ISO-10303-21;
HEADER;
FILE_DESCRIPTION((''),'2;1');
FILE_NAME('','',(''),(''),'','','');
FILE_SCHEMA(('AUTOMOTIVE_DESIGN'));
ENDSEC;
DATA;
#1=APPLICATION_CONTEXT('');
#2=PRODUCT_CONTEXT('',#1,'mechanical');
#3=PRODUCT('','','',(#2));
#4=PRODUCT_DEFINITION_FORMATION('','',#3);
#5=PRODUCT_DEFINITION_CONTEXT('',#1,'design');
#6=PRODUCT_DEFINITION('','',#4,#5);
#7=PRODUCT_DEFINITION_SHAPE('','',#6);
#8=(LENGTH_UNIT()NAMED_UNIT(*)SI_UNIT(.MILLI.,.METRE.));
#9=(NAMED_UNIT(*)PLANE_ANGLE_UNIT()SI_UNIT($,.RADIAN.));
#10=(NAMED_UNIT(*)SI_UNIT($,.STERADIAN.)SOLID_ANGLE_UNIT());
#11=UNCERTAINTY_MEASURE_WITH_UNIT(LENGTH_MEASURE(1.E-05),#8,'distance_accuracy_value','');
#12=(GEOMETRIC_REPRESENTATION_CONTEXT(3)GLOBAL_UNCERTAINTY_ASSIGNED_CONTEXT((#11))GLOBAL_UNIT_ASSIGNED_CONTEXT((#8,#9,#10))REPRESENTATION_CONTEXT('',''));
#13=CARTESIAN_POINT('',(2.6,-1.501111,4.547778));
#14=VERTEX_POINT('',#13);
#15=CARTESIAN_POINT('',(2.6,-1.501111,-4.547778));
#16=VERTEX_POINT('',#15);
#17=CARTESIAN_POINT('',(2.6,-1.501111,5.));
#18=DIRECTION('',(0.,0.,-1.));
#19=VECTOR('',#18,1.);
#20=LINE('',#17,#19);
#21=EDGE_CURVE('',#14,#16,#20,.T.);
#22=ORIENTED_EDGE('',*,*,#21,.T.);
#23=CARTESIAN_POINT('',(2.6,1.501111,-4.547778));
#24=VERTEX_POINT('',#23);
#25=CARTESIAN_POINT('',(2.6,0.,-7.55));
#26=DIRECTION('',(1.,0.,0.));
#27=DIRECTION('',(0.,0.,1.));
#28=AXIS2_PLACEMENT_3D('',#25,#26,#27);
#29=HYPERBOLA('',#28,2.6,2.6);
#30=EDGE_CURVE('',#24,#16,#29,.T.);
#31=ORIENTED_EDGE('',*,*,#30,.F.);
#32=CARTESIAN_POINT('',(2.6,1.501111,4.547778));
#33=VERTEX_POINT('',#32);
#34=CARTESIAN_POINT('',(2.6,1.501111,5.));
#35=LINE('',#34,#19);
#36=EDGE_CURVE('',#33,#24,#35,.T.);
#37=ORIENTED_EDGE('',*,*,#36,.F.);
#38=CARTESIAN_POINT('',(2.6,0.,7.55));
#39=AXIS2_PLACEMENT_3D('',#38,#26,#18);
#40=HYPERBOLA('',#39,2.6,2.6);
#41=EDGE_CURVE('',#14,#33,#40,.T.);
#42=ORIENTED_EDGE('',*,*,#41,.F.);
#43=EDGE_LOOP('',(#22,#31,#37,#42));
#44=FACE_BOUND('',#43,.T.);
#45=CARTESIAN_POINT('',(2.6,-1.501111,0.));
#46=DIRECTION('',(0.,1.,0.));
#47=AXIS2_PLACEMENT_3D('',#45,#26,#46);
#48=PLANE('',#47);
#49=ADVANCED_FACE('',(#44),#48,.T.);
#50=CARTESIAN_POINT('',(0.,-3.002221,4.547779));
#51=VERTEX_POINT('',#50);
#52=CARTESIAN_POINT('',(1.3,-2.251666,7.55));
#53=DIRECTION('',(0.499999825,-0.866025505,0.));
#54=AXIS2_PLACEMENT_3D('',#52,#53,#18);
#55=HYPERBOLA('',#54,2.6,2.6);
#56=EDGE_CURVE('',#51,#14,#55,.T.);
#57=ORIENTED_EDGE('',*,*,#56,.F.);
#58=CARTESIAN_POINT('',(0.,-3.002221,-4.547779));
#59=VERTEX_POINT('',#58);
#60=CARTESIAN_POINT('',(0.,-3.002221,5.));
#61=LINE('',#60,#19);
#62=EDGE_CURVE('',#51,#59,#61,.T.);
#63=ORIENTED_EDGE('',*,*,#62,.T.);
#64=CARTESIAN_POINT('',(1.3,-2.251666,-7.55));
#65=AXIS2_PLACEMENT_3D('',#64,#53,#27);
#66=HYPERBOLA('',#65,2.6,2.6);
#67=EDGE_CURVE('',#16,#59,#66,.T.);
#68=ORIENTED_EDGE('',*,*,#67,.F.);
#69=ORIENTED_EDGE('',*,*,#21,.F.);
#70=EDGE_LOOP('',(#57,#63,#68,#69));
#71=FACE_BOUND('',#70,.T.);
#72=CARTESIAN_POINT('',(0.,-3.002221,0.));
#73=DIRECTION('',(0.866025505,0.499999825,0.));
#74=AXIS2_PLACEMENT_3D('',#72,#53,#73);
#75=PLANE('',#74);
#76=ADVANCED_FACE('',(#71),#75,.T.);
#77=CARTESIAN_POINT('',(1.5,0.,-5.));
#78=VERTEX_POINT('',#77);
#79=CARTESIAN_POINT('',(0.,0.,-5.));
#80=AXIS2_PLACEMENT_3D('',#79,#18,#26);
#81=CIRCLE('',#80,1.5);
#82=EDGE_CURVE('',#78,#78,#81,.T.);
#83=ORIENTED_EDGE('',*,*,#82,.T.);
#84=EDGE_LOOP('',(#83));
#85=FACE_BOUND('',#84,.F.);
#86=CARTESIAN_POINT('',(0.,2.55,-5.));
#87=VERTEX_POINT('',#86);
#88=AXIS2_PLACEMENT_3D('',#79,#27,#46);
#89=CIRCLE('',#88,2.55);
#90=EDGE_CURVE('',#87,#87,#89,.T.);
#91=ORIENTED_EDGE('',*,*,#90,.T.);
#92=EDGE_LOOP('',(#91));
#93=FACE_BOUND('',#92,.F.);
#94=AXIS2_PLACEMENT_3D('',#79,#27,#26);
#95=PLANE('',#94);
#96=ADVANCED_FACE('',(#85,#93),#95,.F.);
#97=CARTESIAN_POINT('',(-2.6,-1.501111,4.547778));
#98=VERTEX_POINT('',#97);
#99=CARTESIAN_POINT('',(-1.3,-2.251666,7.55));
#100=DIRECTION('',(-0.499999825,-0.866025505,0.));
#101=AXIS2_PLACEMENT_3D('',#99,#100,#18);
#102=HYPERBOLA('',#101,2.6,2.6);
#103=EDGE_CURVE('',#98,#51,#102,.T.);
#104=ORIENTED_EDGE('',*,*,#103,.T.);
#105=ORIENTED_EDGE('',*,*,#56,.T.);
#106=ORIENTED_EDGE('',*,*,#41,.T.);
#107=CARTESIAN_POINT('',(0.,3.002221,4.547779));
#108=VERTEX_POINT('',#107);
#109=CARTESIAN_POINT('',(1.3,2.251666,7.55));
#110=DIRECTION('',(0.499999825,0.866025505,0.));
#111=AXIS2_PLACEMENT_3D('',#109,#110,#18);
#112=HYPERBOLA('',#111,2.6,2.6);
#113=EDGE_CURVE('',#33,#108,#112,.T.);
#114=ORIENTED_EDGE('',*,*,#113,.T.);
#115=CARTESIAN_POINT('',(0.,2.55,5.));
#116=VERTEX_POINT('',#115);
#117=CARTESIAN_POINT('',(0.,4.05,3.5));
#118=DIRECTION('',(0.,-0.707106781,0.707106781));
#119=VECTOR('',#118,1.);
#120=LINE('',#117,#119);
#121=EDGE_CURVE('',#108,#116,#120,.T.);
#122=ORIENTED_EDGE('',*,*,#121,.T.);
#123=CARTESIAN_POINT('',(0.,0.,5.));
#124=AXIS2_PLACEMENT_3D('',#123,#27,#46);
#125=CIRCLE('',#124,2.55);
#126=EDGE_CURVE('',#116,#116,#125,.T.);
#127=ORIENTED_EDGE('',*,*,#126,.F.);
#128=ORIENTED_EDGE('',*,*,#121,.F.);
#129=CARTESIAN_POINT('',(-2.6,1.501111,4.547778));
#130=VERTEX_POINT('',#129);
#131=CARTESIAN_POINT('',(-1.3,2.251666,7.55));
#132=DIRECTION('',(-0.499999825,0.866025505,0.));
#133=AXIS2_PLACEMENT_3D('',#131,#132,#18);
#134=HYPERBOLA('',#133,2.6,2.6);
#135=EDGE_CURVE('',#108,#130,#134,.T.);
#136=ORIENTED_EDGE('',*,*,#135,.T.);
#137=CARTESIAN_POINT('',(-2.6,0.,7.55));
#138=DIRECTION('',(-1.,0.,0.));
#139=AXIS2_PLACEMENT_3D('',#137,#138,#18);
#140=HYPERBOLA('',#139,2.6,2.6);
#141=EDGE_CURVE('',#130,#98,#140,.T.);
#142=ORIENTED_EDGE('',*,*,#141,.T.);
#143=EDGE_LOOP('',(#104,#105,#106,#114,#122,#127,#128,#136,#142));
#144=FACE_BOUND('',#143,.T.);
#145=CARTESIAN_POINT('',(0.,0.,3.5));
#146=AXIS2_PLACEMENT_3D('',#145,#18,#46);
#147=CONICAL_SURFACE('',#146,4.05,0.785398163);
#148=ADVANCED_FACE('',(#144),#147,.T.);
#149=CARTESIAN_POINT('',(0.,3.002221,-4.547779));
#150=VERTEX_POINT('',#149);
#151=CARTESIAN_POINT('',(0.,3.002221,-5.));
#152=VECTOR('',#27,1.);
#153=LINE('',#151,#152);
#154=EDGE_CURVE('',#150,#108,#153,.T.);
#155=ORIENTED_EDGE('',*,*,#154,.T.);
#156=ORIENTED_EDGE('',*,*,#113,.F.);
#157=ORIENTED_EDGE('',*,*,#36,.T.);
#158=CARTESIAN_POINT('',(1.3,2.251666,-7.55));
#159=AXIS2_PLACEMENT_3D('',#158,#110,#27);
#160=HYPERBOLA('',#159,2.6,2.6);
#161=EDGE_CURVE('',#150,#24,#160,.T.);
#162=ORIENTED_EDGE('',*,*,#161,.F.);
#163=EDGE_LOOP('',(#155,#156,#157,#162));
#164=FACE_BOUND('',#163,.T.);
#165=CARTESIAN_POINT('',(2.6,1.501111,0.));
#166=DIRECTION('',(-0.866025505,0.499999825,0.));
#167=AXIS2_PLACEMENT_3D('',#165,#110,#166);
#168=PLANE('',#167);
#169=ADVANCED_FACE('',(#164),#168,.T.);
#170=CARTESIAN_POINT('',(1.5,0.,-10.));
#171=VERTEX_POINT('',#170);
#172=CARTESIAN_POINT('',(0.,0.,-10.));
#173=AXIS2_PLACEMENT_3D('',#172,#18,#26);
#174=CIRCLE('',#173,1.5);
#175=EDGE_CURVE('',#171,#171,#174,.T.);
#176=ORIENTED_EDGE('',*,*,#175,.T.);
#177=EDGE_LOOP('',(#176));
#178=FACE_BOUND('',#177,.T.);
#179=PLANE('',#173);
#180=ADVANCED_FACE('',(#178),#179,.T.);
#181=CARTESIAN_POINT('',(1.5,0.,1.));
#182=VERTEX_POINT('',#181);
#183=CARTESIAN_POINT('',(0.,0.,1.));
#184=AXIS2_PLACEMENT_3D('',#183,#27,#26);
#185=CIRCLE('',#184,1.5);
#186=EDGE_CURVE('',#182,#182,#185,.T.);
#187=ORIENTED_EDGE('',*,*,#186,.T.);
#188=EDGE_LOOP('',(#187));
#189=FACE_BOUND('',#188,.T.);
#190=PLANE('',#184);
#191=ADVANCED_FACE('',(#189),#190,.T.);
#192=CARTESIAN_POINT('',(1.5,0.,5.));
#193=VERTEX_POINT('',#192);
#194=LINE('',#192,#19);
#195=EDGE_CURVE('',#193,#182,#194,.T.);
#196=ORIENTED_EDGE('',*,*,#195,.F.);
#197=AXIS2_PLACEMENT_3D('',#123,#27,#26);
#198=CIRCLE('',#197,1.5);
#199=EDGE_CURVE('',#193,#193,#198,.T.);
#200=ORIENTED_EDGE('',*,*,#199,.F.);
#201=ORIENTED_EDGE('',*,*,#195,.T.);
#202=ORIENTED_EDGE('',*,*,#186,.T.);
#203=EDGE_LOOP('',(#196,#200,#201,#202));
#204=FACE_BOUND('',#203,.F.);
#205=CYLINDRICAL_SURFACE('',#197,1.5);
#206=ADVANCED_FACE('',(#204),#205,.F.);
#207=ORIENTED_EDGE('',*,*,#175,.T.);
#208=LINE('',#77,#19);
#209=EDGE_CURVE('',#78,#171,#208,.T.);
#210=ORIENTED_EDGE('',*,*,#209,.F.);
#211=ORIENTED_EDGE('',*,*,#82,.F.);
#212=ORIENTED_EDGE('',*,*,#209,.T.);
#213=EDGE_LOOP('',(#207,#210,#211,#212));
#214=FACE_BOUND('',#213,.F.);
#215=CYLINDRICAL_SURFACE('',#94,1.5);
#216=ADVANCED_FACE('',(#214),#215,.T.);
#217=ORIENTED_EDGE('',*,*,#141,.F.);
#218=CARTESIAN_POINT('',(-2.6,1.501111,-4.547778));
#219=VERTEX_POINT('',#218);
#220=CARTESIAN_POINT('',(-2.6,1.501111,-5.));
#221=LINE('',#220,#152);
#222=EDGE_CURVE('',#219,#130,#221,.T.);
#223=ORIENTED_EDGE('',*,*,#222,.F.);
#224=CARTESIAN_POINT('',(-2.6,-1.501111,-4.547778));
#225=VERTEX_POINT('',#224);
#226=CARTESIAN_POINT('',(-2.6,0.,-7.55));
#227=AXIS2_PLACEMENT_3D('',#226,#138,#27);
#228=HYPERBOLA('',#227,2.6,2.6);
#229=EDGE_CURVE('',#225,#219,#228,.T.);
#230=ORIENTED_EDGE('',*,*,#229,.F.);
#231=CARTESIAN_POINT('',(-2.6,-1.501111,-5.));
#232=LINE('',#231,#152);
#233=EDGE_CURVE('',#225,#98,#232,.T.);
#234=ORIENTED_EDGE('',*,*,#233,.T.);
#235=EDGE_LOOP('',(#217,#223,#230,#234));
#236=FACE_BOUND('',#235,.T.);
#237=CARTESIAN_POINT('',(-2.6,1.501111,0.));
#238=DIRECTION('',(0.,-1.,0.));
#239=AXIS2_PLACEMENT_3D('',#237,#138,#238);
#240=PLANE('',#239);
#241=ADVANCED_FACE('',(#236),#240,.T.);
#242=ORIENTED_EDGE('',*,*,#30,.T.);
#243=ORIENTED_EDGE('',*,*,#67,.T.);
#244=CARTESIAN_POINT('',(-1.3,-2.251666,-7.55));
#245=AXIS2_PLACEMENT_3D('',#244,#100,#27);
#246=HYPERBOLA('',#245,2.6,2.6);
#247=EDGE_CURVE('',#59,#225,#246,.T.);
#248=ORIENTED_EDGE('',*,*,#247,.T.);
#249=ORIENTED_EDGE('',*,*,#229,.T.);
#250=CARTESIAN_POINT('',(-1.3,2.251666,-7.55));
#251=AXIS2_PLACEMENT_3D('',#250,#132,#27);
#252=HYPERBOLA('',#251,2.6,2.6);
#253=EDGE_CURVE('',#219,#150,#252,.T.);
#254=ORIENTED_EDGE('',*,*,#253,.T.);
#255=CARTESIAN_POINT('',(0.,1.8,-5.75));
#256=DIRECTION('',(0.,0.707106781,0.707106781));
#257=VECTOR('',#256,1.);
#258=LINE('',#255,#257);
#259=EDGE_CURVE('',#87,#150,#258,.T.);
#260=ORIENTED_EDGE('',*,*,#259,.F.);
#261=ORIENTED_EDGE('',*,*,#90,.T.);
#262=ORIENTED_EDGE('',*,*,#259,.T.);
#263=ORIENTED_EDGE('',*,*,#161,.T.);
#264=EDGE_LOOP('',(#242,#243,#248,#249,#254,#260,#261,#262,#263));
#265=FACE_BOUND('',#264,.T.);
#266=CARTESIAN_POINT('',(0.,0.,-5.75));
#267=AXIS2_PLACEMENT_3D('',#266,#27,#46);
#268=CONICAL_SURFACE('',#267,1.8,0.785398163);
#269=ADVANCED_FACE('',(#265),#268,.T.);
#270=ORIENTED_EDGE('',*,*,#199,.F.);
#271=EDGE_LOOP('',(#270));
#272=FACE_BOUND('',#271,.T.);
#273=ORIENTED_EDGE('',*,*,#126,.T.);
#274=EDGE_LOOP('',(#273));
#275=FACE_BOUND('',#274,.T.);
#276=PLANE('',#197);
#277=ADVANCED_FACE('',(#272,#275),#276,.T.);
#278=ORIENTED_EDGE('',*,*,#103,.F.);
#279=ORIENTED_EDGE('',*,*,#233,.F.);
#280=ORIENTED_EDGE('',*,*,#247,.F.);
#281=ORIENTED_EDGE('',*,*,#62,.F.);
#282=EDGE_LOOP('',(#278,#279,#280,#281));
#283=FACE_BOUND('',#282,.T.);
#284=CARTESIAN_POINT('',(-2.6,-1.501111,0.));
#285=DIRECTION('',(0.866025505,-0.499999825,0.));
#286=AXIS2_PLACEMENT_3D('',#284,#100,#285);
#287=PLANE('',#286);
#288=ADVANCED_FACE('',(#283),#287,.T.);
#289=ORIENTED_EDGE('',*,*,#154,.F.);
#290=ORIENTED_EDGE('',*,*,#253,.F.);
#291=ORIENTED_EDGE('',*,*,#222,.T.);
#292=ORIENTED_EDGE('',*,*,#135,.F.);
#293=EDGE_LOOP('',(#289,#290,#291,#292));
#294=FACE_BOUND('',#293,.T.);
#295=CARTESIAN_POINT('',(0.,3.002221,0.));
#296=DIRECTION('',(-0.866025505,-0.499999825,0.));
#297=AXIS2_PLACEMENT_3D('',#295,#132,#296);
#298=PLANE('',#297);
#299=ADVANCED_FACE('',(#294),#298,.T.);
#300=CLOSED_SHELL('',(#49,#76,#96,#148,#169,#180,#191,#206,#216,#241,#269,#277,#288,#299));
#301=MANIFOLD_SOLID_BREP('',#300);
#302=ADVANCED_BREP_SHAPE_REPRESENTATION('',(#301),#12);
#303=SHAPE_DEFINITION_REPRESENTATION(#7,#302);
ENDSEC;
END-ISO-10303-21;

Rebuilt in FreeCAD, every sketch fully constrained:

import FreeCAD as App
import Part
import Sketcher
from FreeCAD import Vector
Q = App.Units.Quantity

doc = App.newDocument("Part")
body = doc.addObject("PartDesign::Body", "Body")

# Sketch on XY plane
sketch1 = body.newObject("Sketcher::SketchObject", "Sketch")
sketch1.AttachmentSupport = (doc.getObject("XY_Plane"), [""])
sketch1.MapMode = "FlatFace"
sketch1.addGeometry(Part.LineSegment(Vector(2.6, 1.5, 0), Vector(0, 3, 0)), False)
sketch1.addGeometry(Part.LineSegment(Vector(0, 3, 0), Vector(-2.6, 1.5, 0)), False)
sketch1.addGeometry(Part.LineSegment(Vector(-2.6, 1.5, 0), Vector(-2.6, -1.5, 0)), False)
sketch1.addGeometry(Part.LineSegment(Vector(-2.6, -1.5, 0), Vector(0, -3, 0)), False)
sketch1.addGeometry(Part.LineSegment(Vector(0, -3, 0), Vector(2.6, -1.5, 0)), False)
sketch1.addGeometry(Part.LineSegment(Vector(2.6, -1.5, 0), Vector(2.6, 1.5, 0)), False)
sketch1.addConstraint(Sketcher.Constraint("Coincident", 0, 2, 1, 1))
sketch1.addConstraint(Sketcher.Constraint("Coincident", 1, 2, 2, 1))
sketch1.addConstraint(Sketcher.Constraint("Coincident", 2, 2, 3, 1))
sketch1.addConstraint(Sketcher.Constraint("Coincident", 3, 2, 4, 1))
sketch1.addConstraint(Sketcher.Constraint("Coincident", 4, 2, 5, 1))
sketch1.addConstraint(Sketcher.Constraint("Coincident", 5, 2, 0, 1))
sketch1.addConstraint(Sketcher.Constraint("Vertical", 2))
sketch1.addConstraint(Sketcher.Constraint("Vertical", 5))
sketch1.addConstraint(Sketcher.Constraint("Symmetric", 0, 2, 3, 2, -1, 1))
sketch1.addConstraint(Sketcher.Constraint("Symmetric", 1, 2, 4, 2, -1, 1))
sketch1.addConstraint(Sketcher.Constraint("PointOnObject", 0, 2, -2))
sketch1.addConstraint(Sketcher.Constraint("Parallel", 0, 3))
sketch1.addConstraint(Sketcher.Constraint("Horizontal", 2, 2, 4, 2))
sketch1.addConstraint(Sketcher.Constraint("Angle", 0, Q("150.000012 deg")))
sketch1.addConstraint(Sketcher.Constraint("DistanceX", 1, 2, -1, 1, Q("2.6 mm")))
sketch1.addConstraint(Sketcher.Constraint("DistanceY", 2, 2, 2, 1, Q("3.002222 mm")))
pad1 = body.newObject("PartDesign::Pad", "Pad")
pad1.Profile = sketch1
pad1.Length = 10
pad1.Midplane = True

# Sketch on XY plane
sketch2 = body.newObject("Sketcher::SketchObject", "Sketch001")
sketch2.AttachmentSupport = (doc.getObject("XY_Plane"), [""])
sketch2.MapMode = "FlatFace"
sketch2.AttachmentOffset = App.Placement(Vector(0, 0, 5), App.Rotation())
sketch2.addGeometry(Part.Circle(Vector(0, 0, 0), Vector(0, 0, 1), 1.5), False)
sketch2.addConstraint(Sketcher.Constraint("Coincident", 0, 3, -1, 1))
sketch2.addConstraint(Sketcher.Constraint("Diameter", 0, Q("3 mm")))
pocket1 = body.newObject("PartDesign::Pocket", "Pocket")
pocket1.Profile = sketch2
pocket1.Length = 4

# Sketch on XY plane
sketch3 = body.newObject("Sketcher::SketchObject", "Sketch002")
sketch3.AttachmentSupport = (doc.getObject("XY_Plane"), [""])
sketch3.MapMode = "FlatFace"
sketch3.AttachmentOffset = App.Placement(Vector(0, 0, -5), App.Rotation())
sketch3.addGeometry(Part.Circle(Vector(0, 0, 0), Vector(0, 0, 1), 1.5), False)
sketch3.addConstraint(Sketcher.Constraint("Coincident", 0, 3, -1, 1))
sketch3.addConstraint(Sketcher.Constraint("Diameter", 0, Q("3 mm")))
pad2 = body.newObject("PartDesign::Pad", "Pad001")
pad2.Profile = sketch3
pad2.Length = 5
pad2.Reversed = True

# Sketch on YZ plane
sketch4 = body.newObject("Sketcher::SketchObject", "Sketch003")
sketch4.AttachmentSupport = (doc.getObject("YZ_Plane"), [""])
sketch4.MapMode = "FlatFace"
sketch4.addGeometry(Part.LineSegment(Vector(5.8, 5.8, 0), Vector(1.8, 5.8, 0)), False)
sketch4.addGeometry(Part.LineSegment(Vector(1.8, 5.8, 0), Vector(4, 3.5, 0)), False)
sketch4.addGeometry(Part.LineSegment(Vector(4, 3.5, 0), Vector(4, -3.5, 0)), False)
sketch4.addGeometry(Part.LineSegment(Vector(4, -3.5, 0), Vector(1.8, -5.8, 0)), False)
sketch4.addGeometry(Part.LineSegment(Vector(1.8, -5.8, 0), Vector(5.8, -5.8, 0)), False)
sketch4.addGeometry(Part.LineSegment(Vector(5.8, -5.8, 0), Vector(5.8, 5.8, 0)), False)
sketch4.addConstraint(Sketcher.Constraint("Coincident", 0, 2, 1, 1))
sketch4.addConstraint(Sketcher.Constraint("Coincident", 1, 2, 2, 1))
sketch4.addConstraint(Sketcher.Constraint("Coincident", 2, 2, 3, 1))
sketch4.addConstraint(Sketcher.Constraint("Coincident", 3, 2, 4, 1))
sketch4.addConstraint(Sketcher.Constraint("Coincident", 4, 2, 5, 1))
sketch4.addConstraint(Sketcher.Constraint("Coincident", 5, 2, 0, 1))
sketch4.addConstraint(Sketcher.Constraint("Horizontal", 0))
sketch4.addConstraint(Sketcher.Constraint("Vertical", 2))
sketch4.addConstraint(Sketcher.Constraint("Horizontal", 4))
sketch4.addConstraint(Sketcher.Constraint("Vertical", 5))
sketch4.addConstraint(Sketcher.Constraint("Symmetric", 0, 2, 3, 2, -1))
sketch4.addConstraint(Sketcher.Constraint("Perpendicular", 1, 3))
sketch4.addConstraint(Sketcher.Constraint("Equal", 1, 3))
sketch4.addConstraint(Sketcher.Constraint("DistanceX", 0, 2, 0, 1, Q("4 mm")))
sketch4.addConstraint(Sketcher.Constraint("DistanceY", 2, 2, 2, 1, Q("7 mm")))
sketch4.addConstraint(Sketcher.Constraint("DistanceY", 5, 1, 5, 2, Q("11.5 mm")))
sketch4.addConstraint(Sketcher.Constraint("DistanceX", -1, 1, 0, 2, Q("1.8 mm")))
groove = body.newObject("PartDesign::Groove", "Groove")
groove.Profile = sketch4
groove.ReferenceAxis = (sketch4, ["V_Axis"])
groove.Angle = 360

doc.recompute()
